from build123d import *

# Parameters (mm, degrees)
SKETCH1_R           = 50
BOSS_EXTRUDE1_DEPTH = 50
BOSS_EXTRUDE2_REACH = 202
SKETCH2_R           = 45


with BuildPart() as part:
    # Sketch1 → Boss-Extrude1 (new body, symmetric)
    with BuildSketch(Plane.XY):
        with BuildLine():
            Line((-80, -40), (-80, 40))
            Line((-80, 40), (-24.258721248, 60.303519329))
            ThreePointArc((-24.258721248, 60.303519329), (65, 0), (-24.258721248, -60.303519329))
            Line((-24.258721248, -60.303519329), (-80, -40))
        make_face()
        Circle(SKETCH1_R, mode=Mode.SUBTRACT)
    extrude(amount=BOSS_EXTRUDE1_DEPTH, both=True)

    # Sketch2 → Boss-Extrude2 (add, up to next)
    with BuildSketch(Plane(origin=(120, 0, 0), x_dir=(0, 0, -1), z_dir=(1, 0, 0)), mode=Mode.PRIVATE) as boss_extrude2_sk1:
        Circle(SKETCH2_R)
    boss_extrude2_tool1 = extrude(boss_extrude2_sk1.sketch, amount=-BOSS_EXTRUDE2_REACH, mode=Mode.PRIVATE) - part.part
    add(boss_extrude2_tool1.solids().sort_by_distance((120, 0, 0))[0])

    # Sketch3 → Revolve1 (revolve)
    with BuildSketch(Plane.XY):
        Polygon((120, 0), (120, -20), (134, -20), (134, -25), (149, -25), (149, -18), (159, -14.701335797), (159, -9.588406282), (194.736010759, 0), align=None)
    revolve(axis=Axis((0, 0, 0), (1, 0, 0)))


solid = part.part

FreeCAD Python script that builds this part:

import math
import FreeCAD as App
import Part
import Sketcher
Q = App.Units.Quantity

doc = App.newDocument("Part")
body = doc.addObject("PartDesign::Body", "Body")

# Sketch on XY plane
sketch1 = body.newObject("Sketcher::SketchObject", "Sketch")
sketch1.AttachmentSupport = (doc.getObject("XY_Plane"), [""])
sketch1.MapMode = "FlatFace"
sketch1.addGeometry(Part.LineSegment(App.Vector(-80, 40, 0), App.Vector(-80, -40, 0)), False)
sketch1.addGeometry(Part.LineSegment(App.Vector(-80, -40, 0), App.Vector(-24.258721, -60.303519, 0)), False)
sketch1.addGeometry(Part.ArcOfCircle(Part.Circle(App.Vector(0, 0, 0), App.Vector(0, 0, 1), 65), math.radians(-111.913791), math.radians(111.913791)), False)
sketch1.addGeometry(Part.LineSegment(App.Vector(-24.258721, 60.303519, 0), App.Vector(-80, 40, 0)), False)
sketch1.addGeometry(Part.Circle(App.Vector(0, 0, 0), App.Vector(0, 0, 1), 50), False)
sketch1.addConstraint(Sketcher.Constraint("Coincident", 0, 2, 1, 1))
sketch1.addConstraint(Sketcher.Constraint("Coincident", 1, 2, 2, 1))
sketch1.addConstraint(Sketcher.Constraint("Coincident", 2, 2, 3, 1))
sketch1.addConstraint(Sketcher.Constraint("Coincident", 3, 2, 0, 1))
sketch1.addConstraint(Sketcher.Constraint("Vertical", 0))
sketch1.addConstraint(Sketcher.Constraint("Coincident", 2, 3, -1, 1))
sketch1.addConstraint(Sketcher.Constraint("Coincident", 4, 3, -1, 1))
sketch1.addConstraint(Sketcher.Constraint("Vertical", 1, 2, 2, 2))
sketch1.addConstraint(Sketcher.Constraint("Equal", 1, 3))
sketch1.addConstraint(Sketcher.Constraint("Diameter", 4, Q("100 mm")))
sketch1.addConstraint(Sketcher.Constraint("Radius", 2, Q("65 mm")))
sketch1.addConstraint(Sketcher.Constraint("DistanceY", 0, 2, 0, 1, Q("80 mm")))
sketch1.addConstraint(Sketcher.Constraint("DistanceX", 0, 2, -1, 1, Q("80 mm")))
sketch1.addConstraint(Sketcher.Constraint("DistanceX", 1, 2, -1, 1, Q("24.258721 mm")))
pad1 = body.newObject("PartDesign::Pad", "Pad")
pad1.Profile = sketch1
pad1.Length = 100
pad1.Midplane = True

# Sketch on YZ plane
sketch2 = body.newObject("Sketcher::SketchObject", "Sketch001")
sketch2.AttachmentSupport = (doc.getObject("YZ_Plane"), [""])
sketch2.MapMode = "FlatFace"
sketch2.AttachmentOffset = App.Placement(App.Vector(0, 0, 120), App.Rotation())
sketch2.addGeometry(Part.Circle(App.Vector(0, 0, 0), App.Vector(0, 0, 1), 45), False)
sketch2.addConstraint(Sketcher.Constraint("Coincident", 0, 3, -1, 1))
sketch2.addConstraint(Sketcher.Constraint("Diameter", 0, Q("90 mm")))
pad2 = body.newObject("PartDesign::Pad", "Pad001")
pad2.Profile = sketch2
pad2.Type = "UpToFirst"
pad2.Reversed = True

# Sketch on XY plane
sketch3 = body.newObject("Sketcher::SketchObject", "Sketch002")
sketch3.AttachmentSupport = (doc.getObject("XY_Plane"), [""])
sketch3.MapMode = "FlatFace"
sketch3.addGeometry(Part.LineSegment(App.Vector(120, 0, 0), App.Vector(120, -20, 0)), False)
sketch3.addGeometry(Part.LineSegment(App.Vector(120, -20, 0), App.Vector(134, -20, 0)), False)
sketch3.addGeometry(Part.LineSegment(App.Vector(134, -20, 0), App.Vector(134, -25, 0)), False)
sketch3.addGeometry(Part.LineSegment(App.Vector(134, -25, 0), App.Vector(149, -25, 0)), False)
sketch3.addGeometry(Part.LineSegment(App.Vector(149, -25, 0), App.Vector(149, -18, 0)), False)
sketch3.addGeometry(Part.LineSegment(App.Vector(149, -18, 0), App.Vector(159, -14.701336, 0)), False)
sketch3.addGeometry(Part.LineSegment(App.Vector(159, -14.701336, 0), App.Vector(159, -9.588406, 0)), False)
sketch3.addGeometry(Part.LineSegment(App.Vector(159, -9.588406, 0), App.Vector(194.736011, 0, 0)), False)
sketch3.addGeometry(Part.LineSegment(App.Vector(194.736011, 0, 0), App.Vector(120, 0, 0)), False)
sketch3.addConstraint(Sketcher.Constraint("Coincident", 0, 2, 1, 1))
sketch3.addConstraint(Sketcher.Constraint("Coincident", 1, 2, 2, 1))
sketch3.addConstraint(Sketcher.Constraint("Coincident", 2, 2, 3, 1))
sketch3.addConstraint(Sketcher.Constraint("Coincident", 3, 2, 4, 1))
sketch3.addConstraint(Sketcher.Constraint("Coincident", 4, 2, 5, 1))
sketch3.addConstraint(Sketcher.Constraint("Coincident", 5, 2, 6, 1))
sketch3.addConstraint(Sketcher.Constraint("Coincident", 6, 2, 7, 1))
sketch3.addConstraint(Sketcher.Constraint("Coincident", 7, 2, 8, 1))
sketch3.addConstraint(Sketcher.Constraint("Coincident", 8, 2, 0, 1))
sketch3.addConstraint(Sketcher.Constraint("Vertical", 0))
sketch3.addConstraint(Sketcher.Constraint("Horizontal", 1))
sketch3.addConstraint(Sketcher.Constraint("Vertical", 2))
sketch3.addConstraint(Sketcher.Constraint("Horizontal", 3))
sketch3.addConstraint(Sketcher.Constraint("Vertical", 4))
sketch3.addConstraint(Sketcher.Constraint("Vertical", 6))
sketch3.addConstraint(Sketcher.Constraint("Horizontal", 8))
sketch3.addConstraint(Sketcher.Constraint("PointOnObject", 7, 2, -1))
sketch3.addConstraint(Sketcher.Constraint("DistanceX", 1, 1, 1, 2, Q("14 mm")))
sketch3.addConstraint(Sketcher.Constraint("DistanceX", 3, 1, 3, 2, Q("15 mm")))
sketch3.addConstraint(Sketcher.Constraint("DistanceY", 0, 2, 0, 1, Q("20 mm")))
sketch3.addConstraint(Sketcher.Constraint("DistanceY", 2, 2, 2, 1, Q("5 mm")))
sketch3.addConstraint(Sketcher.Constraint("DistanceY", 4, 1, 4, 2, Q("7 mm")))
sketch3.addConstraint(Sketcher.Constraint("Distance", 7, Q("37 mm")))
sketch3.addConstraint(Sketcher.Constraint("DistanceX", -1, 1, 0, 2, Q("120 mm")))
sketch3.addConstraint(Sketcher.Constraint("DistanceX", -1, 1, 5, 2, Q("159 mm")))
sketch3.addConstraint(Sketcher.Constraint("DistanceX", 8, 2, 8, 1, Q("74.736011 mm")))
sketch3.addConstraint(Sketcher.Constraint("DistanceY", 6, 1, 6, 2, Q("5.11293 mm")))
revolution = body.newObject("PartDesign::Revolution", "Revolution")
revolution.Profile = sketch3
revolution.ReferenceAxis = (sketch3, ["H_Axis"])
revolution.Angle = 360

doc.recompute()
